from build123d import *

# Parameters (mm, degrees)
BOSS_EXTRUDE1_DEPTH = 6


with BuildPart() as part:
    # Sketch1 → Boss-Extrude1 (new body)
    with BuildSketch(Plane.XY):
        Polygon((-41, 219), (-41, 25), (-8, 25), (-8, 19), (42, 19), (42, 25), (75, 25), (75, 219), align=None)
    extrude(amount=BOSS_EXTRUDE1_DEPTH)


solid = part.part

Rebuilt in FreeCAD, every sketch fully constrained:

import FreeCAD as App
import Part
import Sketcher

V = App.Vector

doc = App.newDocument("Part")
body = doc.addObject("PartDesign::Body", "Body")

sketch1 = body.newObject("Sketcher::SketchObject", "Sketch")
sketch1.AttachmentSupport = (doc.getObject("XY_Plane"), [""])
sketch1.MapMode = "FlatFace"
sketch1.addGeometry([
    Part.LineSegment(V(-41, 219, 0), V(-41, 25, 0)),
    Part.LineSegment(V(-41, 25, 0), V(-8, 25, 0)),
    Part.LineSegment(V(-8, 25, 0), V(-8, 19, 0)),
    Part.LineSegment(V(-8, 19, 0), V(42, 19, 0)),
    Part.LineSegment(V(42, 19, 0), V(42, 25, 0)),
    Part.LineSegment(V(42, 25, 0), V(75, 25, 0)),
    Part.LineSegment(V(75, 25, 0), V(75, 219, 0)),
    Part.LineSegment(V(75, 219, 0), V(-41, 219, 0)),
], False)
sketch1.addConstraint([
    Sketcher.Constraint("Coincident", 0, 2, 1, 1),
    Sketcher.Constraint("Coincident", 1, 2, 2, 1),
    Sketcher.Constraint("Coincident", 2, 2, 3, 1),
    Sketcher.Constraint("Coincident", 3, 2, 4, 1),
    Sketcher.Constraint("Coincident", 4, 2, 5, 1),
    Sketcher.Constraint("Coincident", 5, 2, 6, 1),
    Sketcher.Constraint("Coincident", 6, 2, 7, 1),
    Sketcher.Constraint("Coincident", 7, 2, 0, 1),
    Sketcher.Constraint("Vertical", 0),
    Sketcher.Constraint("Horizontal", 1),
    Sketcher.Constraint("Vertical", 2),
    Sketcher.Constraint("Horizontal", 3),
    Sketcher.Constraint("Vertical", 4),
    Sketcher.Constraint("Horizontal", 5),
    Sketcher.Constraint("Vertical", 6),
    Sketcher.Constraint("Horizontal", 7),
    Sketcher.Constraint("Horizontal", 1, 2, 4, 2),
    Sketcher.Constraint("Equal", 1, 5),
    Sketcher.Constraint("DistanceX", 1, 1, 1, 2, 33.0),
    Sketcher.Constraint("DistanceX", 3, 1, 3, 2, 50.0),
    Sketcher.Constraint("DistanceY", 0, 2, 0, 1, 194.0),
    Sketcher.Constraint("DistanceY", 2, 2, 2, 1, 6.0),
    Sketcher.Constraint("DistanceX", 0, 2, -1, 1, 41.0),
    Sketcher.Constraint("DistanceY", -1, 1, 0, 2, 25.0),
])
pad1 = body.newObject("PartDesign::Pad", "Pad")
pad1.Profile = sketch1
pad1.Length = 6

doc.recompute()
